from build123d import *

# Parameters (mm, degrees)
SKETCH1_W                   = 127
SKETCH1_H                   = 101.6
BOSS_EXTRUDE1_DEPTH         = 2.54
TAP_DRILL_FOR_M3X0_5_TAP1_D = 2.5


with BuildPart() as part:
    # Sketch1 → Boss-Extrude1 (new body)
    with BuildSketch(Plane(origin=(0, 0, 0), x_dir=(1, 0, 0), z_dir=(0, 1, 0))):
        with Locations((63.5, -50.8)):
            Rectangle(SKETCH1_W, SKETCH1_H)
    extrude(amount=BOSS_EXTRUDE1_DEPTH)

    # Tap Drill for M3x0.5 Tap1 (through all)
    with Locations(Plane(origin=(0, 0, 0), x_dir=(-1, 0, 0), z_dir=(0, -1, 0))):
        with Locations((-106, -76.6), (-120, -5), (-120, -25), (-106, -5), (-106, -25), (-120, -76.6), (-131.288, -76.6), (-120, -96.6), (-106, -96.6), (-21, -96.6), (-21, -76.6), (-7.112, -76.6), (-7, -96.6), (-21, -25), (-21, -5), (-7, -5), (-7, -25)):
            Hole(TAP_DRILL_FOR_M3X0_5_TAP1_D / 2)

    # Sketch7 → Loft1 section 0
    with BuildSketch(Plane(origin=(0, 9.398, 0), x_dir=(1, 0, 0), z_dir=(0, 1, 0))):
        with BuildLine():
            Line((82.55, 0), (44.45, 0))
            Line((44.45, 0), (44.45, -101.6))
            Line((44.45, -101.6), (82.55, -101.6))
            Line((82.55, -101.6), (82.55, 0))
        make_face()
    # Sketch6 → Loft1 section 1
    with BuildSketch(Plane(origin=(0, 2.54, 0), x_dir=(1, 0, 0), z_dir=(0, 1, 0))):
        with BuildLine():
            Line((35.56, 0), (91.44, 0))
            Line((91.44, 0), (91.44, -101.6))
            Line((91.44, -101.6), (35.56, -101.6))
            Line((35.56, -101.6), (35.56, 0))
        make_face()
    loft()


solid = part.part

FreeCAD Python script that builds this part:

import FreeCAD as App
import Part
import Sketcher

V = App.Vector
Q = App.Units.Quantity

doc = App.newDocument("Part")
params = doc.addObject("Spreadsheet::Sheet", "Params")
for row, (alias, value) in enumerate([
    ("sketch1_width", "5 in"),
    ("sketch1_height", "4 in"),
    ("pad1_length", "0.1 in"),
    ("hole_diameter", "2.5 mm"),
    ("sketch3_height", "4 in"),
    ("sketch3_width", "1.5 in"),
    ("sketch4_height", "4 in"),
    ("sketch4_width", "2.2 in"),
], start=1):
    params.set(f"A{row}", alias)
    params.set(f"B{row}", "=" + value)
    params.setAlias(f"B{row}", alias)

body = doc.addObject("PartDesign::Body", "Body")

# Sketch on XZ plane
sketch1 = body.newObject("Sketcher::SketchObject", "Sketch")
sketch1.AttachmentSupport = (doc.getObject("XZ_Plane"), [""])
sketch1.MapMode = "FlatFace"
sketch1.addGeometry([
    Part.LineSegment(V(0, 0, 0), V(0, 102, 0)),
    Part.LineSegment(V(0, 102, 0), V(127, 102, 0)),
    Part.LineSegment(V(127, 102, 0), V(127, 0, 0)),
    Part.LineSegment(V(127, 0, 0), V(0, 0, 0)),
], False)
sketch1.addConstraint([
    Sketcher.Constraint("Coincident", 0, 2, 1, 1),
    Sketcher.Constraint("Coincident", 1, 2, 2, 1),
    Sketcher.Constraint("Coincident", 2, 2, 3, 1),
    Sketcher.Constraint("Coincident", 3, 2, 0, 1),
    Sketcher.Constraint("Vertical", 0),
    Sketcher.Constraint("Horizontal", 1),
    Sketcher.Constraint("Vertical", 2),
    Sketcher.Constraint("Horizontal", 3),
    Sketcher.Constraint("Coincident", 3, 2, -1, 1),
    Sketcher.Constraint("DistanceX", 1, 1, 1, 2, Q("5 in")),
    Sketcher.Constraint("DistanceY", 0, 1, 0, 2, Q("4 in")),
])
sketch1.setExpression("Constraints[9]", "Params.sketch1_width")
sketch1.setExpression("Constraints[10]", "Params.sketch1_height")
pad1 = body.newObject("PartDesign::Pad", "Pad")
pad1.Profile = sketch1
pad1.setExpression("Length", "Params.pad1_length")
pad1.Reversed = True

# Sketch on XZ plane
sketch2 = body.newObject("Sketcher::SketchObject", "Sketch001")
sketch2.AttachmentSupport = (doc.getObject("XZ_Plane"), [""])
sketch2.MapMode = "FlatFace"
sketch2.addGeometry([
    Part.Circle(V(106, 76.6, 0), V(0, 0, 1), 1.2),  # 0
    Part.Circle(V(120, 5, 0), V(0, 0, 1), 1.2),  # 1
    Part.Circle(V(120, 25, 0), V(0, 0, 1), 1.2),  # 2
    Part.Circle(V(106, 5, 0), V(0, 0, 1), 1.2),  # 3
    Part.Circle(V(106, 25, 0), V(0, 0, 1), 1.2),  # 4
    Part.Circle(V(120, 76.6, 0), V(0, 0, 1), 1.2),  # 5
    Part.Circle(V(131.3, 76.6, 0), V(0, 0, 1), 1.2),  # 6
    Part.Circle(V(120, 96.6, 0), V(0, 0, 1), 1.2),  # 7
    Part.Circle(V(106, 96.6, 0), V(0, 0, 1), 1.2),  # 8
    Part.Circle(V(21, 96.6, 0), V(0, 0, 1), 1.2),  # 9
    Part.Circle(V(21, 76.6, 0), V(0, 0, 1), 1.2),  # 10
    Part.Circle(V(7.1, 76.6, 0), V(0, 0, 1), 1.2),  # 11
    Part.Circle(V(7, 96.6, 0), V(0, 0, 1), 1.2),  # 12
    Part.Circle(V(21, 25, 0), V(0, 0, 1), 1.2),  # 13
    Part.Circle(V(21, 5, 0), V(0, 0, 1), 1.2),  # 14
    Part.Circle(V(7, 5, 0), V(0, 0, 1), 1.2),  # 15
    Part.Circle(V(7, 25, 0), V(0, 0, 1), 1.2),  # 16
], False)
sketch2.addConstraint([
    Sketcher.Constraint("Equal", 0, 1),
    Sketcher.Constraint("Equal", 1, 2),
    Sketcher.Constraint("Equal", 2, 3),
    Sketcher.Constraint("Equal", 3, 4),
    Sketcher.Constraint("Equal", 4, 5),
    Sketcher.Constraint("Equal", 5, 6),
    Sketcher.Constraint("Equal", 6, 7),
    Sketcher.Constraint("Equal", 7, 8),
    Sketcher.Constraint("Equal", 8, 9),
    Sketcher.Constraint("Equal", 9, 10),
    Sketcher.Constraint("Equal", 10, 11),
    Sketcher.Constraint("Equal", 11, 12),
    Sketcher.Constraint("Equal", 12, 13),
    Sketcher.Constraint("Equal", 13, 14),
    Sketcher.Constraint("Equal", 14, 15),
    Sketcher.Constraint("Equal", 15, 16),
    Sketcher.Constraint("Horizontal", 1, 3, 3, 3),
    Sketcher.Constraint("Horizontal", 2, 3, 4, 3),
    Sketcher.Constraint("Horizontal", 0, 3, 5, 3),
    Sketcher.Constraint("Horizontal", 5, 3, 6, 3),
    Sketcher.Constraint("Horizontal", 7, 3, 8, 3),
    Sketcher.Constraint("Horizontal", 8, 3, 9, 3),
    Sketcher.Constraint("Horizontal", 6, 3, 10, 3),
    Sketcher.Constraint("Horizontal", 10, 3, 11, 3),
    Sketcher.Constraint("Horizontal", 9, 3, 12, 3),
    Sketcher.Constraint("Horizontal", 4, 3, 13, 3),
    Sketcher.Constraint("Horizontal", 3, 3, 14, 3),
    Sketcher.Constraint("Horizontal", 14, 3, 15, 3),
    Sketcher.Constraint("Horizontal", 13, 3, 16, 3),
    Sketcher.Constraint("Vertical", 1, 3, 2, 3),
    Sketcher.Constraint("Vertical", 0, 3, 3, 3),
    Sketcher.Constraint("Vertical", 3, 3, 4, 3),
    Sketcher.Constraint("Vertical", 2, 3, 5, 3),
    Sketcher.Constraint("Vertical", 5, 3, 7, 3),
    Sketcher.Constraint("Vertical", 4, 3, 8, 3),
    Sketcher.Constraint("Vertical", 9, 3, 10, 3),
    Sketcher.Constraint("Vertical", 10, 3, 13, 3),
    Sketcher.Constraint("Vertical", 13, 3, 14, 3),
    Sketcher.Constraint("Vertical", 12, 3, 15, 3),
    Sketcher.Constraint("Vertical", 15, 3, 16, 3),
    Sketcher.Constraint("Diameter", 0, Q("2.5 mm")),
    Sketcher.Constraint("DistanceX", -1, 1, 11, 3, Q("0.28 in")),
    Sketcher.Constraint("DistanceX", -1, 1, 0, 3, Q("106 mm")),
    Sketcher.Constraint("DistanceY", -1, 1, 0, 3, Q("76.6 mm")),
    Sketcher.Constraint("DistanceX", -1, 1, 1, 3, Q("120 mm")),
    Sketcher.Constraint("DistanceY", -1, 1, 1, 3, Q("5 mm")),
    Sketcher.Constraint("DistanceY", -1, 1, 2, 3, Q("25 mm")),
    Sketcher.Constraint("DistanceX", -1, 1, 6, 3, Q("131.288 mm")),
    Sketcher.Constraint("DistanceY", -1, 1, 7, 3, Q("96.6 mm")),
    Sketcher.Constraint("DistanceX", -1, 1, 9, 3, Q("21 mm")),
    Sketcher.Constraint("DistanceX", -1, 1, 12, 3, Q("7 mm")),
])
doc.recompute()
hole = body.newObject("PartDesign::Hole", "Hole")
hole.Profile = sketch2
hole.ThreadType = "None"
hole.setExpression("Diameter", "Params.hole_diameter")
hole.DepthType = "ThroughAll"

# Sketch on XZ plane
sketch3 = body.newObject("Sketcher::SketchObject", "Sketch002")
sketch3.AttachmentSupport = (doc.getObject("XZ_Plane"), [""])
sketch3.MapMode = "FlatFace"
sketch3.AttachmentOffset = App.Placement(V(0, 0, -0.37 * 25.4), App.Rotation())
sketch3.addGeometry([
    Part.LineSegment(V(83, 0, 0), V(44, 0, 0)),
    Part.LineSegment(V(44, 0, 0), V(44, 102, 0)),
    Part.LineSegment(V(44, 102, 0), V(83, 102, 0)),
    Part.LineSegment(V(83, 102, 0), V(83, 0, 0)),
], False)
sketch3.addConstraint([
    Sketcher.Constraint("Coincident", 0, 2, 1, 1),
    Sketcher.Constraint("Coincident", 1, 2, 2, 1),
    Sketcher.Constraint("Coincident", 2, 2, 3, 1),
    Sketcher.Constraint("Coincident", 3, 2, 0, 1),
    Sketcher.Constraint("Horizontal", 0),
    Sketcher.Constraint("Vertical", 1),
    Sketcher.Constraint("Horizontal", 2),
    Sketcher.Constraint("Vertical", 3),
    Sketcher.Constraint("PointOnObject", 0, 2, -1),
    Sketcher.Constraint("DistanceY", 1, 1, 1, 2, Q("4 in")),
    Sketcher.Constraint("DistanceX", 0, 2, 0, 1, Q("1.5 in")),
    Sketcher.Constraint("DistanceX", -1, 1, 0, 2, Q("1.75 in")),
])
sketch3.setExpression("Constraints[9]", "Params.sketch3_height")
sketch3.setExpression("Constraints[10]", "Params.sketch3_width")

# Sketch on XZ plane
sketch4 = body.newObject("Sketcher::SketchObject", "Sketch003")
sketch4.AttachmentSupport = (doc.getObject("XZ_Plane"), [""])
sketch4.MapMode = "FlatFace"
sketch4.AttachmentOffset = App.Placement(V(0, 0, -0.1 * 25.4), App.Rotation())
sketch4.addGeometry([
    Part.LineSegment(V(91, 0, 0), V(36, 0, 0)),
    Part.LineSegment(V(36, 0, 0), V(36, 102, 0)),
    Part.LineSegment(V(36, 102, 0), V(91, 102, 0)),
    Part.LineSegment(V(91, 102, 0), V(91, 0, 0)),
], False)
sketch4.addConstraint([
    Sketcher.Constraint("Coincident", 0, 2, 1, 1),
    Sketcher.Constraint("Coincident", 1, 2, 2, 1),
    Sketcher.Constraint("Coincident", 2, 2, 3, 1),
    Sketcher.Constraint("Coincident", 3, 2, 0, 1),
    Sketcher.Constraint("Horizontal", 0),
    Sketcher.Constraint("Vertical", 1),
    Sketcher.Constraint("Horizontal", 2),
    Sketcher.Constraint("Vertical", 3),
    Sketcher.Constraint("PointOnObject", 0, 2, -1),
    Sketcher.Constraint("DistanceY", 1, 1, 1, 2, Q("4 in")),
    Sketcher.Constraint("DistanceX", 0, 2, 0, 1, Q("2.2 in")),
    Sketcher.Constraint("DistanceX", -1, 1, 0, 2, Q("1.4 in")),
])
sketch4.setExpression("Constraints[9]", "Params.sketch4_height")
sketch4.setExpression("Constraints[10]", "Params.sketch4_width")

additiveloft = body.newObject("PartDesign::AdditiveLoft", "AdditiveLoft")
additiveloft.Profile = sketch3
additiveloft.Sections = [sketch4]

doc.recompute()
